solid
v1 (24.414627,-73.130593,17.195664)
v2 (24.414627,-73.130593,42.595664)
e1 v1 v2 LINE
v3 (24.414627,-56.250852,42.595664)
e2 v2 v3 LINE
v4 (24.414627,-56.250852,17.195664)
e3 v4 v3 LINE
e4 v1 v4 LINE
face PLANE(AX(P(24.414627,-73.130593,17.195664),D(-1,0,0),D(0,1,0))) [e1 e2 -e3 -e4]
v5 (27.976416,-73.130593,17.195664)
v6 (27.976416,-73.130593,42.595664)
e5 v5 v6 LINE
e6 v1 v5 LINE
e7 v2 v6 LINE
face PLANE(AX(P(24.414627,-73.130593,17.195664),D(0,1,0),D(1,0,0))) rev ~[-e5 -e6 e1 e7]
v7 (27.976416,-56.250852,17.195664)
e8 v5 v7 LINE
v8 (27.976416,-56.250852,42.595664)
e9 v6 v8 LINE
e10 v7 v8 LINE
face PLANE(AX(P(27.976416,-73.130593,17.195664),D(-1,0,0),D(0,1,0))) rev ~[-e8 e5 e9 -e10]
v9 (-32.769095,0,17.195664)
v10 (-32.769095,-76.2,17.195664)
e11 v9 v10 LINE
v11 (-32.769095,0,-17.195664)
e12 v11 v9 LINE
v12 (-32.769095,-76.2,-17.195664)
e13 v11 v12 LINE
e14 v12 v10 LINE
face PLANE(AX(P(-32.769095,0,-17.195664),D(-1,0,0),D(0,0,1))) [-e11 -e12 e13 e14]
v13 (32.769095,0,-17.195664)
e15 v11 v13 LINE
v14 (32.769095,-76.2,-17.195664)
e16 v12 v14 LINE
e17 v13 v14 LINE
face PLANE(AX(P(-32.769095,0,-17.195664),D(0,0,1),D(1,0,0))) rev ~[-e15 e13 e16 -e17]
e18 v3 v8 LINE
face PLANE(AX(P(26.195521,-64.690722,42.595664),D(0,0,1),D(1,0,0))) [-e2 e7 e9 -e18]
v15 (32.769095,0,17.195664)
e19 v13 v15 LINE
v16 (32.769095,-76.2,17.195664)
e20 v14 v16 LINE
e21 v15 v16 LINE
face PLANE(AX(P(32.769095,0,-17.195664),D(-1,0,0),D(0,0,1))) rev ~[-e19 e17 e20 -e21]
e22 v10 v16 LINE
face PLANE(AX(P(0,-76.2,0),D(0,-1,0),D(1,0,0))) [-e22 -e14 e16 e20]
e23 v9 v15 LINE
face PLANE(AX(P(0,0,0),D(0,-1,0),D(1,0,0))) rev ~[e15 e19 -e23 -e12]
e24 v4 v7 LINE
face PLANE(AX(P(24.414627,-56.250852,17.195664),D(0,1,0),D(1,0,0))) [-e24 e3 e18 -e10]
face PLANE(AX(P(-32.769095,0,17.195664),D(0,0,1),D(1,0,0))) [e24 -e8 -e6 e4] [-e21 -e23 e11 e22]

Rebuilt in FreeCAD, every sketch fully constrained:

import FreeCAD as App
import Part
import Sketcher
from FreeCAD import Vector
Q = App.Units.Quantity


def add_polygon(sketch, points):
    """Adds a closed chain of lines whose ends are joined by coincident constraints."""
    first, n = sketch.GeometryCount, len(points)
    for a, b in zip(points, points[1:] + points[:1]):
        sketch.addGeometry(Part.LineSegment(App.Vector(*a, 0), App.Vector(*b, 0)), False)
    for i in range(n):
        sketch.addConstraint(Sketcher.Constraint("Coincident", first + i, 2, first + (i + 1) % n, 1))

doc = App.newDocument("Part")
body = doc.addObject("PartDesign::Body", "Body")

sketch1 = doc.addObject("Sketcher::SketchObject", "Sketch")
body.addObject(sketch1)
sketch1.AttachmentSupport = (doc.XZ_Plane, [""])
sketch1.MapMode = "FlatFace"
add_polygon(sketch1, [(-33, 17), (-33, -17), (33, -17), (33, 17)])
sketch1.addConstraint([
    Sketcher.Constraint("Vertical", 0),
    Sketcher.Constraint("Horizontal", 1),
    Sketcher.Constraint("Vertical", 2),
    Sketcher.Constraint("Horizontal", 3),
    Sketcher.Constraint("Symmetric", 0, 2, 2, 2, -1, 1),
    Sketcher.Constraint("DistanceX", 1, 1, 1, 2, 65.53819),
    Sketcher.Constraint("DistanceY", 0, 2, 0, 1, 34.391328),
])
pad1 = doc.addObject("PartDesign::Pad", "Pad")
body.addObject(pad1)
pad1.Profile = sketch1
pad1.Length = Q("3 in")

sketch2 = doc.addObject("Sketcher::SketchObject", "Sketch001")
body.addObject(sketch2)
sketch2.AttachmentSupport = (doc.XY_Plane, [""])
sketch2.MapMode = "FlatFace"
sketch2.AttachmentOffset = App.Placement(Vector(0, 0, 17.195664), App.Rotation())
add_polygon(sketch2, [(24.4, -56.3), (24.4, -73.1), (28, -73.1), (28, -56.3)])
sketch2.addConstraint([
    Sketcher.Constraint("Vertical", 0),
    Sketcher.Constraint("Horizontal", 1),
    Sketcher.Constraint("Vertical", 2),
    Sketcher.Constraint("Horizontal", 3),
    Sketcher.Constraint("DistanceX", 1, 1, 1, 2, 3.561789),
    Sketcher.Constraint("DistanceY", 0, 2, 0, 1, 16.879741),
    Sketcher.Constraint("DistanceY", 2, 2, -1, 1, 56.250852),
    Sketcher.Constraint("DistanceX", -1, 1, 0, 2, 24.414627),
])
pad2 = doc.addObject("PartDesign::Pad", "Pad001")
body.addObject(pad2)
pad2.Profile = sketch2
pad2.Length = Q("1 in")

doc.recompute()
